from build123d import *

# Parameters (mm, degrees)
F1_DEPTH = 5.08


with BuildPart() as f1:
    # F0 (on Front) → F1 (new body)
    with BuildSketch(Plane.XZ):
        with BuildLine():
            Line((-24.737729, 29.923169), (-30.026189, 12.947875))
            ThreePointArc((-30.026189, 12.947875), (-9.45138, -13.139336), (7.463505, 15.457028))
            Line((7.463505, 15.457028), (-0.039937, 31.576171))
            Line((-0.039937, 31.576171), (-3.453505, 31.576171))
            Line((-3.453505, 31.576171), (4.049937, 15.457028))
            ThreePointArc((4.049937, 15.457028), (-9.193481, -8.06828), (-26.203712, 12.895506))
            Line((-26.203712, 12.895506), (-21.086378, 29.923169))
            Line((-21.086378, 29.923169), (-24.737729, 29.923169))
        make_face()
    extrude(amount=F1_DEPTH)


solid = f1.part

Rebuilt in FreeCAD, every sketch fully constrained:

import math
import FreeCAD as App
import Part
import Sketcher

V = App.Vector
Q = App.Units.Quantity

doc = App.newDocument("Part")
body = doc.addObject("PartDesign::Body", "Body")

# Sketch on XZ plane
sketch1 = doc.addObject("Sketcher::SketchObject", "Sketch")
body.addObject(sketch1)
sketch1.AttachmentSupport = (doc.XZ_Plane, [""])
sketch1.MapMode = "FlatFace"
sketch1.addGeometry(Part.LineSegment(V(-24.7, 29.9, 0), V(-30, 12.9, 0)), False)
sketch1.addGeometry(Part.ArcOfCircle(Part.Circle(V(-10.8, 7, 0), V(0, 0, 1), 20.1), math.radians(163), math.radians(385)), False)
sketch1.addGeometry(Part.LineSegment(V(7.5, 15.5, 0), V(0, 31.6, 0)), False)
sketch1.addGeometry(Part.LineSegment(V(0, 31.6, 0), V(-3.5, 31.6, 0)), False)
sketch1.addGeometry(Part.LineSegment(V(-3.5, 31.6, 0), V(4, 15.5, 0)), False)
sketch1.addGeometry(Part.ArcOfCircle(Part.Circle(V(-10.6, 8.2, 0), V(0, 0, 1), 16.3), math.radians(163), math.radians(386)), False)
sketch1.addGeometry(Part.LineSegment(V(-26.2, 12.9, 0), V(-21.1, 29.9, 0)), False)
sketch1.addGeometry(Part.LineSegment(V(-21.1, 29.9, 0), V(-24.7, 29.9, 0)), False)
sketch1.addConstraint(Sketcher.Constraint("Tangent", 0, 2, 1, 1))
sketch1.addConstraint(Sketcher.Constraint("Tangent", 1, 2, 2, 1))
sketch1.addConstraint(Sketcher.Constraint("Coincident", 2, 2, 3, 1))
sketch1.addConstraint(Sketcher.Constraint("Coincident", 3, 2, 4, 1))
sketch1.addConstraint(Sketcher.Constraint("Coincident", 4, 2, 5, 2))
sketch1.addConstraint(Sketcher.Constraint("Tangent", 5, 1, 6, 1))
sketch1.addConstraint(Sketcher.Constraint("Coincident", 6, 2, 7, 1))
sketch1.addConstraint(Sketcher.Constraint("Coincident", 7, 2, 0, 1))
sketch1.addConstraint(Sketcher.Constraint("Horizontal", 3))
sketch1.addConstraint(Sketcher.Constraint("Horizontal", 7))
sketch1.addConstraint(Sketcher.Constraint("Parallel", 2, 4))
sketch1.addConstraint(Sketcher.Constraint("Horizontal", 1, 2, 4, 2))
sketch1.addConstraint(Sketcher.Constraint("Equal", 0, 2))
sketch1.addConstraint(Sketcher.Constraint("Equal", 4, 6))
sketch1.addConstraint(Sketcher.Constraint("Distance", 0, Q("0.7 in")))
sketch1.addConstraint(Sketcher.Constraint("DistanceY", -1, 1, 1, 3, Q("0.2738999 in")))
sketch1.addConstraint(Sketcher.Constraint("Radius", 1, 20.141354))
sketch1.addConstraint(Sketcher.Constraint("Radius", 5, 16.323772))
sketch1.addConstraint(Sketcher.Constraint("DistanceX", 6, 2, 2, 2, Q("0.8286 in")))
sketch1.addConstraint(Sketcher.Constraint("DistanceX", 7, 2, 7, 1, 3.651351))
sketch1.addConstraint(Sketcher.Constraint("DistanceX", 5, 1, 1, 3, 15.407298))
sketch1.addConstraint(Sketcher.Constraint("DistanceY", 6, 2, 3, 2, 1.653002))
sketch1.addConstraint(Sketcher.Constraint("DistanceX", 5, 3, -1, 1, 10.570659))
pad1 = doc.addObject("PartDesign::Pad", "Pad")
body.addObject(pad1)
pad1.Profile = sketch1
pad1.Length = Q("0.2 in")

doc.recompute()
